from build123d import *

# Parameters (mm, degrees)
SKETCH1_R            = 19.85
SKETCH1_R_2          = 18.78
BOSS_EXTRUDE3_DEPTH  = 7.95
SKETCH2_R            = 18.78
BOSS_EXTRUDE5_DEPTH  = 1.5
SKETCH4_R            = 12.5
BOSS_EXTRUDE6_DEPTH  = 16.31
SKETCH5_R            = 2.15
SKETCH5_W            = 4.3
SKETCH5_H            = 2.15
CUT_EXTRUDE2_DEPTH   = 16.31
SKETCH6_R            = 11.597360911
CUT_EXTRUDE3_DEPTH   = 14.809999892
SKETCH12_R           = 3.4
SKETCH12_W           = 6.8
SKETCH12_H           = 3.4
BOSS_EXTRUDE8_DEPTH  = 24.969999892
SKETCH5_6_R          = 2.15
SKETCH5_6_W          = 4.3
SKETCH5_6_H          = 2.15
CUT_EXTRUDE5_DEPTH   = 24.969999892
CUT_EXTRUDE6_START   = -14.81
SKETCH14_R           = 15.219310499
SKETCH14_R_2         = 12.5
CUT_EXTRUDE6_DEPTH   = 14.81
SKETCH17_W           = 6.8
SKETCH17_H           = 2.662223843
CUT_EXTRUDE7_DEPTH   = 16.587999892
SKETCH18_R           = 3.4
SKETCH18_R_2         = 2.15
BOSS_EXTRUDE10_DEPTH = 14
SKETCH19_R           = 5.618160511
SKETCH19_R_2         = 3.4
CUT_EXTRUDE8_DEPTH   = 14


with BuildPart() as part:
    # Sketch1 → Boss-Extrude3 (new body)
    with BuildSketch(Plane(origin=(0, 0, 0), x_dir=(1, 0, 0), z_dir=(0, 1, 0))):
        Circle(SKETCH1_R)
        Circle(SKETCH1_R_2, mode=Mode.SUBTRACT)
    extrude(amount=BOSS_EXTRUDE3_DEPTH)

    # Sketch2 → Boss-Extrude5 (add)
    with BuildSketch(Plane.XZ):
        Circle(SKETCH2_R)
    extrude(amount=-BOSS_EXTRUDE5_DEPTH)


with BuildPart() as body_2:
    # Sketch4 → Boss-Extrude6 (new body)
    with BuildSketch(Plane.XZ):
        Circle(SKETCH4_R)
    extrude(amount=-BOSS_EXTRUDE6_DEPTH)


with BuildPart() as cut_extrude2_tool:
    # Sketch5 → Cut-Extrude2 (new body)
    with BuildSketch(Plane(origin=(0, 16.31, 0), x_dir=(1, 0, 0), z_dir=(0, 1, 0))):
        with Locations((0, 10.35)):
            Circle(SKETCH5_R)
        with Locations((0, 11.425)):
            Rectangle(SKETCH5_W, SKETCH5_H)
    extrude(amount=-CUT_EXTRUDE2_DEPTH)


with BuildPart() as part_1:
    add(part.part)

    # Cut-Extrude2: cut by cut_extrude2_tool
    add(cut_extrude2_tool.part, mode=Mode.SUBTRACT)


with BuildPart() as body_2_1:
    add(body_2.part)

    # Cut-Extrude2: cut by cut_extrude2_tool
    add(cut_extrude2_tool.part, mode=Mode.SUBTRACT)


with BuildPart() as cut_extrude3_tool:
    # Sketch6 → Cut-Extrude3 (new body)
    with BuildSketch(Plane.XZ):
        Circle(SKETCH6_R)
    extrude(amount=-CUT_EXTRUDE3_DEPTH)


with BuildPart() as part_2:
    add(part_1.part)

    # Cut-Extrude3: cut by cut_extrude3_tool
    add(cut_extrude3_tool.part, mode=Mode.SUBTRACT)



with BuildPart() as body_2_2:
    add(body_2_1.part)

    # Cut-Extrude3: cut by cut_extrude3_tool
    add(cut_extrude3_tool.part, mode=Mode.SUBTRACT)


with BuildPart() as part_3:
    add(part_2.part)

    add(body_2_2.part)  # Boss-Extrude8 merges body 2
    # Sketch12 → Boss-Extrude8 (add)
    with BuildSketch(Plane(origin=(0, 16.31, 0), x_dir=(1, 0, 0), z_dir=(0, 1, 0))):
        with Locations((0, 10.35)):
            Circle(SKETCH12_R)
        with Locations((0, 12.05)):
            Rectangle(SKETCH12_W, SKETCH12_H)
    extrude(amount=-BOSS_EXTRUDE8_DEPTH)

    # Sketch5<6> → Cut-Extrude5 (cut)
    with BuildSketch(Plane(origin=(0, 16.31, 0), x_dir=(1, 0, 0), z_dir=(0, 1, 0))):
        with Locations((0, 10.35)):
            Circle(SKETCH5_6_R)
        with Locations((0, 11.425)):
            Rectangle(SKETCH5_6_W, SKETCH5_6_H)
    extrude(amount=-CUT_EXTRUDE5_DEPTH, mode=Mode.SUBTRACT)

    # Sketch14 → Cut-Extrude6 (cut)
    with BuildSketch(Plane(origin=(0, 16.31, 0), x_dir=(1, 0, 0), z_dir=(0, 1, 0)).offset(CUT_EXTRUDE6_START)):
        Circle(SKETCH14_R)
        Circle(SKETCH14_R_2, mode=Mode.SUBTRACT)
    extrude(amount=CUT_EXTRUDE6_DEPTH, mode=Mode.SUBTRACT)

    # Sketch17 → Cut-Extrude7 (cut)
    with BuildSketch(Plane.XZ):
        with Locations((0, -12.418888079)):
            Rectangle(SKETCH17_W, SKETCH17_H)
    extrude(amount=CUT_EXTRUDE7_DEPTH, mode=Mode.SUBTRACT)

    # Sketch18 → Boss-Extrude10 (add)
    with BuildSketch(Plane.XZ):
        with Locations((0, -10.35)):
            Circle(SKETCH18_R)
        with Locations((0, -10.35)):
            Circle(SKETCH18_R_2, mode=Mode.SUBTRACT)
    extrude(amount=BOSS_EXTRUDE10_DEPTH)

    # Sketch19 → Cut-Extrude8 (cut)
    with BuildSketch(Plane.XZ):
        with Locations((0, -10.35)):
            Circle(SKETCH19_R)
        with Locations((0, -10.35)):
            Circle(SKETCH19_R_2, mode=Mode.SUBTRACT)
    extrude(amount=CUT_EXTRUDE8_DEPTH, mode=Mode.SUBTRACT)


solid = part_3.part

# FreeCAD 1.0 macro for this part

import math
import FreeCAD as App
import Part
import Sketcher

V = App.Vector
Q = App.Units.Quantity


def add_polygon(sketch, points):
    """Adds a closed chain of lines whose ends are joined by coincident constraints."""
    first, n = sketch.GeometryCount, len(points)
    for a, b in zip(points, points[1:] + points[:1]):
        sketch.addGeometry(Part.LineSegment(App.Vector(*a, 0), App.Vector(*b, 0)), False)
    for i in range(n):
        sketch.addConstraint(Sketcher.Constraint("Coincident", first + i, 2, first + (i + 1) % n, 1))

doc = App.newDocument("Part")
body = doc.addObject("PartDesign::Body", "Body")

sketch1 = doc.addObject("Sketcher::SketchObject", "Sketch")
body.addObject(sketch1)
sketch1.AttachmentSupport = (doc.XZ_Plane, [""])
sketch1.MapMode = "FlatFace"
sketch1.addGeometry(Part.Circle(V(0, 0, 0), V(0, 0, 1), 20), False)
sketch1.addGeometry(Part.Circle(V(0, 0, 0), V(0, 0, 1), 19), False)
sketch1.addConstraint(Sketcher.Constraint("Coincident", 0, 3, -1, 1))
sketch1.addConstraint(Sketcher.Constraint("Coincident", 1, 3, -1, 1))
sketch1.addConstraint(Sketcher.Constraint("Diameter", 0, Q("39.7 mm")))
sketch1.addConstraint(Sketcher.Constraint("Diameter", 1, Q("37.56 mm")))
pad1 = doc.addObject("PartDesign::Pad", "Pad")
body.addObject(pad1)
pad1.Profile = sketch1
pad1.Length = 7.95
pad1.Reversed = True

sketch2 = doc.addObject("Sketcher::SketchObject", "Sketch001")
body.addObject(sketch2)
sketch2.AttachmentSupport = (doc.XZ_Plane, [""])
sketch2.MapMode = "FlatFace"
sketch2.addGeometry(Part.Circle(V(0, 0, 0), V(0, 0, 1), 19), False)
sketch2.addConstraint(Sketcher.Constraint("Coincident", 0, 3, -1, 1))
sketch2.addConstraint(Sketcher.Constraint("Diameter", 0, Q("37.56 mm")))
pad2 = doc.addObject("PartDesign::Pad", "Pad001")
body.addObject(pad2)
pad2.Profile = sketch2
pad2.Length = 1.5
pad2.Reversed = True
body2 = doc.addObject("PartDesign::Body", "Body001")

sketch3 = doc.addObject("Sketcher::SketchObject", "Sketch002")
body2.addObject(sketch3)
sketch3.AttachmentSupport = (doc.getObject("XZ_Plane001"), [""])
sketch3.MapMode = "FlatFace"
sketch3.addGeometry(Part.Circle(V(0, 0, 0), V(0, 0, 1), 12), False)
sketch3.addConstraint(Sketcher.Constraint("Coincident", 0, 3, -1, 1))
sketch3.addConstraint(Sketcher.Constraint("Diameter", 0, Q("25 mm")))
pad3 = doc.addObject("PartDesign::Pad", "Pad002")
body2.addObject(pad3)
pad3.Profile = sketch3
pad3.Length = 16.31
pad3.Reversed = True
body3 = doc.addObject("PartDesign::Body", "Body002")

sketch4 = doc.addObject("Sketcher::SketchObject", "Sketch003")
body3.addObject(sketch4)
sketch4.AttachmentSupport = (doc.getObject("XZ_Plane002"), [""])
sketch4.MapMode = "FlatFace"
sketch4.AttachmentOffset = App.Placement(V(0, 0, -16.31), App.Rotation())
sketch4.addGeometry(Part.ArcOfCircle(Part.Circle(V(0, -10.3, 0), V(0, 0, 1), 2.1), math.radians(0), math.radians(180)), False)
sketch4.addGeometry(Part.LineSegment(V(2.1, -10.3, 0), V(2.1, -12.5, 0)), False)
sketch4.addGeometry(Part.LineSegment(V(2.1, -12.5, 0), V(-2.1, -12.5, 0)), False)
sketch4.addGeometry(Part.LineSegment(V(-2.1, -12.5, 0), V(-2.1, -10.3, 0)), False)
sketch4.addConstraint(Sketcher.Constraint("Tangent", 0, 1, 1, 1))
sketch4.addConstraint(Sketcher.Constraint("Coincident", 1, 2, 2, 1))
sketch4.addConstraint(Sketcher.Constraint("Coincident", 2, 2, 3, 1))
sketch4.addConstraint(Sketcher.Constraint("Tangent", 3, 2, 0, 2))
sketch4.addConstraint(Sketcher.Constraint("Vertical", 1))
sketch4.addConstraint(Sketcher.Constraint("Horizontal", 2))
sketch4.addConstraint(Sketcher.Constraint("Vertical", 3))
sketch4.addConstraint(Sketcher.Constraint("PointOnObject", 0, 3, -2))
sketch4.addConstraint(Sketcher.Constraint("Radius", 0, Q("2.15 mm")))
sketch4.addConstraint(Sketcher.Constraint("DistanceY", 1, 2, 1, 1, Q("2.15 mm")))
sketch4.addConstraint(Sketcher.Constraint("DistanceY", 1, 2, -1, 1, Q("12.5 mm")))
pad4 = doc.addObject("PartDesign::Pad", "Pad003")
body3.addObject(pad4)
pad4.Profile = sketch4
pad4.Length = 16.31
doc.recompute()

body4 = doc.addObject("PartDesign::Body", "Body003")
body4.BaseFeature = body3
boolean = doc.addObject("PartDesign::Boolean", "Boolean")
body.addObject(boolean)
boolean.Type = "Cut"
boolean.addObjects([body4])
doc.recompute()

boolean2 = doc.addObject("PartDesign::Boolean", "Boolean001")
body2.addObject(boolean2)
boolean2.Type = "Cut"
boolean2.addObjects([body3])
body5 = doc.addObject("PartDesign::Body", "Body004")

sketch5 = doc.addObject("Sketcher::SketchObject", "Sketch004")
body5.addObject(sketch5)
sketch5.AttachmentSupport = (doc.getObject("XZ_Plane004"), [""])
sketch5.MapMode = "FlatFace"
sketch5.addGeometry(Part.Circle(V(0, 0, 0), V(0, 0, 1), 12), False)
sketch5.addConstraint(Sketcher.Constraint("Coincident", 0, 3, -1, 1))
sketch5.addConstraint(Sketcher.Constraint("Diameter", 0, Q("23.194722 mm")))
pad5 = doc.addObject("PartDesign::Pad", "Pad004")
body5.addObject(pad5)
pad5.Profile = sketch5
pad5.Length = 14.81
pad5.Reversed = True
doc.recompute()

body6 = doc.addObject("PartDesign::Body", "Body005")
body6.BaseFeature = body5
boolean3 = doc.addObject("PartDesign::Boolean", "Boolean002")
body.addObject(boolean3)
boolean3.Type = "Cut"
boolean3.addObjects([body6])
doc.recompute()

boolean4 = doc.addObject("PartDesign::Boolean", "Boolean003")
body2.addObject(boolean4)
boolean4.Type = "Cut"
boolean4.addObjects([body5])
doc.recompute()

boolean5 = doc.addObject("PartDesign::Boolean", "Boolean004")
body.addObject(boolean5)
boolean5.Type = "Fuse"
boolean5.addObjects([body2])

sketch6 = doc.addObject("Sketcher::SketchObject", "Sketch005")
body.addObject(sketch6)
sketch6.AttachmentSupport = (doc.XZ_Plane, [""])
sketch6.MapMode = "FlatFace"
sketch6.AttachmentOffset = App.Placement(V(0, 0, -16.31), App.Rotation())
sketch6.addGeometry(Part.ArcOfCircle(Part.Circle(V(0, -10.3, 0), V(0, 0, 1), 3.4), math.radians(0), math.radians(180)), False)
sketch6.addGeometry(Part.LineSegment(V(3.4, -10.3, 0), V(3.4, -13.8, 0)), False)
sketch6.addGeometry(Part.LineSegment(V(3.4, -13.8, 0), V(-3.4, -13.8, 0)), False)
sketch6.addGeometry(Part.LineSegment(V(-3.4, -13.8, 0), V(-3.4, -10.3, 0)), False)
sketch6.addConstraint(Sketcher.Constraint("Tangent", 0, 1, 1, 1))
sketch6.addConstraint(Sketcher.Constraint("Coincident", 1, 2, 2, 1))
sketch6.addConstraint(Sketcher.Constraint("Coincident", 2, 2, 3, 1))
sketch6.addConstraint(Sketcher.Constraint("Tangent", 3, 2, 0, 2))
sketch6.addConstraint(Sketcher.Constraint("Vertical", 1))
sketch6.addConstraint(Sketcher.Constraint("Horizontal", 2))
sketch6.addConstraint(Sketcher.Constraint("Vertical", 3))
sketch6.addConstraint(Sketcher.Constraint("PointOnObject", 0, 3, -2))
sketch6.addConstraint(Sketcher.Constraint("Radius", 0, Q("3.4 mm")))
sketch6.addConstraint(Sketcher.Constraint("DistanceY", 1, 2, 1, 1, Q("3.4 mm")))
sketch6.addConstraint(Sketcher.Constraint("DistanceY", 0, 3, -1, 1, Q("10.35 mm")))
pad6 = doc.addObject("PartDesign::Pad", "Pad005")
body.addObject(pad6)
pad6.Profile = sketch6
pad6.Length = 24.97

sketch7 = doc.addObject("Sketcher::SketchObject", "Sketch006")
body.addObject(sketch7)
sketch7.AttachmentSupport = (doc.XZ_Plane, [""])
sketch7.MapMode = "FlatFace"
sketch7.AttachmentOffset = App.Placement(V(0, 0, -16.31), App.Rotation())
sketch7.addGeometry(Part.ArcOfCircle(Part.Circle(V(0, -10.3, 0), V(0, 0, 1), 2.1), math.radians(0), math.radians(180)), False)
sketch7.addGeometry(Part.LineSegment(V(2.1, -10.3, 0), V(2.1, -12.5, 0)), False)
sketch7.addGeometry(Part.LineSegment(V(2.1, -12.5, 0), V(-2.1, -12.5, 0)), False)
sketch7.addGeometry(Part.LineSegment(V(-2.1, -12.5, 0), V(-2.1, -10.3, 0)), False)
sketch7.addConstraint(Sketcher.Constraint("Tangent", 0, 1, 1, 1))
sketch7.addConstraint(Sketcher.Constraint("Coincident", 1, 2, 2, 1))
sketch7.addConstraint(Sketcher.Constraint("Coincident", 2, 2, 3, 1))
sketch7.addConstraint(Sketcher.Constraint("Tangent", 3, 2, 0, 2))
sketch7.addConstraint(Sketcher.Constraint("Vertical", 1))
sketch7.addConstraint(Sketcher.Constraint("Horizontal", 2))
sketch7.addConstraint(Sketcher.Constraint("Vertical", 3))
sketch7.addConstraint(Sketcher.Constraint("PointOnObject", 0, 3, -2))
sketch7.addConstraint(Sketcher.Constraint("Radius", 0, Q("2.15 mm")))
sketch7.addConstraint(Sketcher.Constraint("DistanceY", 1, 2, 1, 1, Q("2.15 mm")))
sketch7.addConstraint(Sketcher.Constraint("DistanceY", 1, 2, -1, 1, Q("12.5 mm")))
pocket1 = doc.addObject("PartDesign::Pocket", "Pocket")
body.addObject(pocket1)
pocket1.Profile = sketch7
pocket1.Length = 24.97
pocket1.Reversed = True

sketch8 = doc.addObject("Sketcher::SketchObject", "Sketch007")
body.addObject(sketch8)
sketch8.AttachmentSupport = (doc.XZ_Plane, [""])
sketch8.MapMode = "FlatFace"
sketch8.AttachmentOffset = App.Placement(V(0, 0, -1.5), App.Rotation())
sketch8.addGeometry(Part.Circle(V(0, 0, 0), V(0, 0, 1), 15), False)
sketch8.addGeometry(Part.Circle(V(0, 0, 0), V(0, 0, 1), 12), False)
sketch8.addConstraint(Sketcher.Constraint("Coincident", 0, 3, -1, 1))
sketch8.addConstraint(Sketcher.Constraint("Coincident", 1, 3, -1, 1))
sketch8.addConstraint(Sketcher.Constraint("Diameter", 1, Q("25 mm")))
sketch8.addConstraint(Sketcher.Constraint("Diameter", 0, Q("30.438621 mm")))
pocket2 = doc.addObject("PartDesign::Pocket", "Pocket001")
body.addObject(pocket2)
pocket2.Profile = sketch8
pocket2.Length = 14.81

sketch9 = doc.addObject("Sketcher::SketchObject", "Sketch008")
body.addObject(sketch9)
sketch9.AttachmentSupport = (doc.XZ_Plane, [""])
sketch9.MapMode = "FlatFace"
add_polygon(sketch9, [(-3.4, -11.1), (-3.4, -13.8), (3.4, -13.8), (3.4, -11.1)])
sketch9.addConstraint(Sketcher.Constraint("Vertical", 0))
sketch9.addConstraint(Sketcher.Constraint("Horizontal", 1))
sketch9.addConstraint(Sketcher.Constraint("Vertical", 2))
sketch9.addConstraint(Sketcher.Constraint("Horizontal", 3))
sketch9.addConstraint(Sketcher.Constraint("DistanceX", 1, 1, 1, 2, Q("6.8 mm")))
sketch9.addConstraint(Sketcher.Constraint("DistanceX", 0, 2, -1, 1, Q("3.4 mm")))
sketch9.addConstraint(Sketcher.Constraint("DistanceY", 0, 2, -1, 1, Q("13.75 mm")))
sketch9.addConstraint(Sketcher.Constraint("DistanceY", 0, 2, 0, 1, Q("2.662224 mm")))
pocket3 = doc.addObject("PartDesign::Pocket", "Pocket002")
body.addObject(pocket3)
pocket3.Profile = sketch9
pocket3.Length = 16.588
pocket3.Reversed = True

sketch10 = doc.addObject("Sketcher::SketchObject", "Sketch009")
body.addObject(sketch10)
sketch10.AttachmentSupport = (doc.XZ_Plane, [""])
sketch10.MapMode = "FlatFace"
sketch10.addGeometry(Part.Circle(V(0, -10.3, 0), V(0, 0, 1), 3.4), False)
sketch10.addGeometry(Part.Circle(V(0, -10.3, 0), V(0, 0, 1), 2.1), False)
sketch10.addConstraint(Sketcher.Constraint("Coincident", 1, 3, 0, 3))
sketch10.addConstraint(Sketcher.Constraint("PointOnObject", 0, 3, -2))
sketch10.addConstraint(Sketcher.Constraint("Diameter", 0, Q("6.8 mm")))
sketch10.addConstraint(Sketcher.Constraint("Diameter", 1, Q("4.3 mm")))
sketch10.addConstraint(Sketcher.Constraint("DistanceY", 0, 3, -1, 1, Q("10.35 mm")))
pad7 = doc.addObject("PartDesign::Pad", "Pad006")
body.addObject(pad7)
pad7.Profile = sketch10
pad7.Length = 14

sketch11 = doc.addObject("Sketcher::SketchObject", "Sketch010")
body.addObject(sketch11)
sketch11.AttachmentSupport = (doc.XZ_Plane, [""])
sketch11.MapMode = "FlatFace"
sketch11.addGeometry(Part.Circle(V(0, -10.3, 0), V(0, 0, 1), 5.6), False)
sketch11.addGeometry(Part.Circle(V(0, -10.3, 0), V(0, 0, 1), 3.4), False)
sketch11.addConstraint(Sketcher.Constraint("Coincident", 1, 3, 0, 3))
sketch11.addConstraint(Sketcher.Constraint("PointOnObject", 0, 3, -2))
sketch11.addConstraint(Sketcher.Constraint("Diameter", 1, Q("6.8 mm")))
sketch11.addConstraint(Sketcher.Constraint("Diameter", 0, Q("11.236321 mm")))
sketch11.addConstraint(Sketcher.Constraint("DistanceY", 0, 3, -1, 1, Q("10.35 mm")))
pocket4 = doc.addObject("PartDesign::Pocket", "Pocket003")
body.addObject(pocket4)
pocket4.Profile = sketch11
pocket4.Length = 14
pocket4.Reversed = True

doc.recompute()
